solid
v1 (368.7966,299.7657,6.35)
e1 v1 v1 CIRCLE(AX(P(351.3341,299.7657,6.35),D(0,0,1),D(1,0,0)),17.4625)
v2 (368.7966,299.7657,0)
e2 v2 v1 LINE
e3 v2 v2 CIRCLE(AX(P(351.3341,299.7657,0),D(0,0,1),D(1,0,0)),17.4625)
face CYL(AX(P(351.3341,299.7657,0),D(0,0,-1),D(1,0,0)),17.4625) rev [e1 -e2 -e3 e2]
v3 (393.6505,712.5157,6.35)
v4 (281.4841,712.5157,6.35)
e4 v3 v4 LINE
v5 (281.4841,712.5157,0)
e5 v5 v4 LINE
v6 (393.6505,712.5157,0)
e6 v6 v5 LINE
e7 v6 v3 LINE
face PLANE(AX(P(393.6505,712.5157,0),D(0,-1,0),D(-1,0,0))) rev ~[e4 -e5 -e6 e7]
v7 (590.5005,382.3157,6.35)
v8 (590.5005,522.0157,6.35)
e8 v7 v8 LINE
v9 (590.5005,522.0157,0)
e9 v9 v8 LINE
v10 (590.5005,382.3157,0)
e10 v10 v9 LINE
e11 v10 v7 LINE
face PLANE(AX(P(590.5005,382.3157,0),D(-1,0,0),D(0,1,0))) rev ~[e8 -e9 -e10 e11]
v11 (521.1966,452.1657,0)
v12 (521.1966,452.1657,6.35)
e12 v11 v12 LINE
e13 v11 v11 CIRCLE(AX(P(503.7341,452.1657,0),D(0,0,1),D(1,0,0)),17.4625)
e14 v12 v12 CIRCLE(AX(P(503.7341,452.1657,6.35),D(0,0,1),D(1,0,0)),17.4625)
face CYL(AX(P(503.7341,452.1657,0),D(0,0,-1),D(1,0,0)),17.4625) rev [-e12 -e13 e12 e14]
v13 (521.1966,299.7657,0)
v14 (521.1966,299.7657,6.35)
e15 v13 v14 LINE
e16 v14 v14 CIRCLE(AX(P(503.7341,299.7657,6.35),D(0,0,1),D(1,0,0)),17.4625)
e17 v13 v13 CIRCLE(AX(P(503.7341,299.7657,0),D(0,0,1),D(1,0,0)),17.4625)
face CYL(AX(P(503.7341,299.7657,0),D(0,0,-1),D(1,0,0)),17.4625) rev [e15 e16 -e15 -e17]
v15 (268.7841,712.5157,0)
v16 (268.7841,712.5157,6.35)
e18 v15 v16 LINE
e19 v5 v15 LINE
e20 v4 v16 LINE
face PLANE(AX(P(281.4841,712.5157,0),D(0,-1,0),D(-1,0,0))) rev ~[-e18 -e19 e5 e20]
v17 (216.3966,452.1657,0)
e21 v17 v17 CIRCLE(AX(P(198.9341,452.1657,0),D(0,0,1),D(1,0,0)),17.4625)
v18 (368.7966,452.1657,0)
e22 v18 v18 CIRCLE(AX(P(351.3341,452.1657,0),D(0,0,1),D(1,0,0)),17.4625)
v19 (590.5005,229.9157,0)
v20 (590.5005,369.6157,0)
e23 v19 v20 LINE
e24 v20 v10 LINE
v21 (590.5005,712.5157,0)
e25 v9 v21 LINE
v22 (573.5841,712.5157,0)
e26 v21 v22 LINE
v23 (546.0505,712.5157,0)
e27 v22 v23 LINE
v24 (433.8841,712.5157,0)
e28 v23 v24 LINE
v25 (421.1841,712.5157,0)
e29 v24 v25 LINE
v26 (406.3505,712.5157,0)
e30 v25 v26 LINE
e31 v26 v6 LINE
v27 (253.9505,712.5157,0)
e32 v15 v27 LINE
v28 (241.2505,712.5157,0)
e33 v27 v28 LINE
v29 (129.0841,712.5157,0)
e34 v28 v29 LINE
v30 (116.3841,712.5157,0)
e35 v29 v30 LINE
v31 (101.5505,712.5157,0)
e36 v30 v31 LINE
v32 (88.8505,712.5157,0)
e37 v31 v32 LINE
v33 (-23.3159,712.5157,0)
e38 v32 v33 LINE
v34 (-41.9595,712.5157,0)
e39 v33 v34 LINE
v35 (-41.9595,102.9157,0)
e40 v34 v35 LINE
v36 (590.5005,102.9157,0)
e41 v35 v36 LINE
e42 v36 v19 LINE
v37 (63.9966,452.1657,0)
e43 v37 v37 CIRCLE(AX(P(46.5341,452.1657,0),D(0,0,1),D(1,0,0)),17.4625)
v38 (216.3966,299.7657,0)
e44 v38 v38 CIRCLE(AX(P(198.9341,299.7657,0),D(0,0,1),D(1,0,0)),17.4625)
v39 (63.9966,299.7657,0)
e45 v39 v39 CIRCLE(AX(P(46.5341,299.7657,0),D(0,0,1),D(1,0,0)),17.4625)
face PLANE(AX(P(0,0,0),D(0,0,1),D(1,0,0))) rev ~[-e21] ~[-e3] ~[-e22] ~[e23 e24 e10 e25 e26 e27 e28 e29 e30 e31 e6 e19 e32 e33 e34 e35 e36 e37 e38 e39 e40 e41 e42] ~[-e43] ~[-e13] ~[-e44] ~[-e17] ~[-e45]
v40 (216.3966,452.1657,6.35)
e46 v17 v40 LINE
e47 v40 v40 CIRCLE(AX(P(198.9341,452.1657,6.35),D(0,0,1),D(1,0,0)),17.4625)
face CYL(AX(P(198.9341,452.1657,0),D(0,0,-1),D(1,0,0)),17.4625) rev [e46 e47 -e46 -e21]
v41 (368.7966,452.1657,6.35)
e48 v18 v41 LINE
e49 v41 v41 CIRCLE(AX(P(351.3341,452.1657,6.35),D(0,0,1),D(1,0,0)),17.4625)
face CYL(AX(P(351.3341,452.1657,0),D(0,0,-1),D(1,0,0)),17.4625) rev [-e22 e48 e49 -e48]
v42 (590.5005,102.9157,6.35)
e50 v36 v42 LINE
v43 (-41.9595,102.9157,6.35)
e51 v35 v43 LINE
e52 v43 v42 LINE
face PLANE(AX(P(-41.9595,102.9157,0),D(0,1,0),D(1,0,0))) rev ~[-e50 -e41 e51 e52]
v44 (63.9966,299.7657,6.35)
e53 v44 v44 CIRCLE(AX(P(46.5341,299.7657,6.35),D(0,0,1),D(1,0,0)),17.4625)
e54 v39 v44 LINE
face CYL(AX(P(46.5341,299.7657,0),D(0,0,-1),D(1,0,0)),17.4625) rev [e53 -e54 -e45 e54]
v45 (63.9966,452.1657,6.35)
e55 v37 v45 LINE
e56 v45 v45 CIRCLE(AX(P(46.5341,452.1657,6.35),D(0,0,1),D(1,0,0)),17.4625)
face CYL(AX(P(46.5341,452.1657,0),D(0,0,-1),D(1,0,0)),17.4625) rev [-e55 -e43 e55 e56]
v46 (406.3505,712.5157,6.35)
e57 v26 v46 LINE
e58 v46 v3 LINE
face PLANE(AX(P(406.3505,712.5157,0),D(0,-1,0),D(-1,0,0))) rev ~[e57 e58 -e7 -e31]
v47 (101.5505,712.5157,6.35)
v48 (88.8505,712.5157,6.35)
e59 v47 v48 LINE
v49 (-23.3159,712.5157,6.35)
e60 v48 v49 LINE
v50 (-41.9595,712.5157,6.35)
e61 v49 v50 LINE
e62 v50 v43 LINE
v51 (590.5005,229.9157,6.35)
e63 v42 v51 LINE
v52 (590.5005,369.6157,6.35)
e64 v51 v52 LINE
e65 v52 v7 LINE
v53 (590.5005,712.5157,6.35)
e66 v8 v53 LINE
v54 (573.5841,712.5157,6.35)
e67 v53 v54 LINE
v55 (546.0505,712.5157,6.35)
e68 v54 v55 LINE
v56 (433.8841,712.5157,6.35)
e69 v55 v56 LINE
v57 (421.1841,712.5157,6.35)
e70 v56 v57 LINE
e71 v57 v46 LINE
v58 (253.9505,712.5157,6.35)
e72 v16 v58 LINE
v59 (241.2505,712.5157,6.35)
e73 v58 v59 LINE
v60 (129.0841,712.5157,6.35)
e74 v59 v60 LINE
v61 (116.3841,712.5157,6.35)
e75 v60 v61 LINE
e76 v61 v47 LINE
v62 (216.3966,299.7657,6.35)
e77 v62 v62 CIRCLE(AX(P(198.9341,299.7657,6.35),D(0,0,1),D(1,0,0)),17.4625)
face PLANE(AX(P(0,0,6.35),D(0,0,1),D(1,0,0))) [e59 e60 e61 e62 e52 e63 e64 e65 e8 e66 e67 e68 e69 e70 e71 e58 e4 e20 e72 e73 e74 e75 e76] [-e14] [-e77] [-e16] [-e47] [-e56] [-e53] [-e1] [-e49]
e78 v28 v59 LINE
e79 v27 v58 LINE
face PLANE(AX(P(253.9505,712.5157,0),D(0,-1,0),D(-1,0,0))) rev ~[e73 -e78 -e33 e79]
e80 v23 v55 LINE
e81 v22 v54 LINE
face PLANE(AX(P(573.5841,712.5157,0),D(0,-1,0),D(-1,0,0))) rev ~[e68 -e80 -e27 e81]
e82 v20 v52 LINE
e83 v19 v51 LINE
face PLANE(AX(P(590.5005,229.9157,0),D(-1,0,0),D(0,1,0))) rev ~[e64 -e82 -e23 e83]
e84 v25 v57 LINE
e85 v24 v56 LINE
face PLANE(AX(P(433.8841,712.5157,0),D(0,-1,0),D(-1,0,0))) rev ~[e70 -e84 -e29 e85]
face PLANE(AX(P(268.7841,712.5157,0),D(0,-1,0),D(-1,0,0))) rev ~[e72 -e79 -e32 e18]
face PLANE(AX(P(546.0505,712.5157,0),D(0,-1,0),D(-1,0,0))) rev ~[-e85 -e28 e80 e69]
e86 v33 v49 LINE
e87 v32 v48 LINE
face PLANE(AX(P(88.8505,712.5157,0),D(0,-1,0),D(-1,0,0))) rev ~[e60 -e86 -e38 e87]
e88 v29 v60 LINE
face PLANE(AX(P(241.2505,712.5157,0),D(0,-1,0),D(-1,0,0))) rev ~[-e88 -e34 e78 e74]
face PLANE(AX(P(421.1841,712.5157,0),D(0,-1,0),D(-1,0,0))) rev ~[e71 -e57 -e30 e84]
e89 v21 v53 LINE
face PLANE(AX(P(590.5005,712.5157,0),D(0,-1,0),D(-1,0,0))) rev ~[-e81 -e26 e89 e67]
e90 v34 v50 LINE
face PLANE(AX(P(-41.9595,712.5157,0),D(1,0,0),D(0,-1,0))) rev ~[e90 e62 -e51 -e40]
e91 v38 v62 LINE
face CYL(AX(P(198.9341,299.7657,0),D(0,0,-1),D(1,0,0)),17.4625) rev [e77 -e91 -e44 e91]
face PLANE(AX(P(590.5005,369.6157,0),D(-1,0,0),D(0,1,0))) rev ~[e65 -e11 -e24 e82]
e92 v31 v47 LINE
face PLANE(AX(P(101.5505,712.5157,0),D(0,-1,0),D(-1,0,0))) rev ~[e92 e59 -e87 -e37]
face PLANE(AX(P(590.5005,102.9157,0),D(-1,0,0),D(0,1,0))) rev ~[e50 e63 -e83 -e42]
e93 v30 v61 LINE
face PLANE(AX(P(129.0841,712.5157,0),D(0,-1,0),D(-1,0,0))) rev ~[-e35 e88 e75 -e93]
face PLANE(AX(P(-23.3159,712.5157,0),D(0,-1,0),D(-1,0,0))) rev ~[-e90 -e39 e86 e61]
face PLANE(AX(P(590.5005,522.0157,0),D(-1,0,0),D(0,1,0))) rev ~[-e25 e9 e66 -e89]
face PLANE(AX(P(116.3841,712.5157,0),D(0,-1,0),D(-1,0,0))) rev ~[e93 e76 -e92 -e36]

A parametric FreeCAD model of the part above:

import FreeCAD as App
import Part
import Sketcher
Q = App.Units.Quantity


def add_polygon(sketch, points):
    """Adds a closed chain of lines whose ends are joined by coincident constraints."""
    first, n = sketch.GeometryCount, len(points)
    for a, b in zip(points, points[1:] + points[:1]):
        sketch.addGeometry(Part.LineSegment(App.Vector(*a, 0), App.Vector(*b, 0)), False)
    for i in range(n):
        sketch.addConstraint(Sketcher.Constraint("Coincident", first + i, 2, first + (i + 1) % n, 1))

doc = App.newDocument("Part")
params = doc.addObject("Spreadsheet::Sheet", "Params")
for row, (alias, value) in enumerate([
    ("sketch1_height", "24 in"),
    ("sketch1_diameter", "1.375 in"),
    ("sketch1_width", "24.9 in"),
    ("pad1_length", "0.25 in"),
], start=1):
    params.set(f"A{row}", alias)
    params.set(f"B{row}", "=" + value)
    params.setAlias(f"B{row}", alias)

body = doc.addObject("PartDesign::Body", "Body")

# Sketch on XY plane
sketch1 = doc.addObject("Sketcher::SketchObject", "Sketch")
body.addObject(sketch1)
sketch1.AttachmentSupport = (doc.XY_Plane, [""])
sketch1.MapMode = "FlatFace"
add_polygon(sketch1, [(-41.9595, 712.5157), (-41.9595, 102.9157), (590.5005, 102.9157), (590.5005, 712.5157)])  # lines 0-3
sketch1.addGeometry(Part.Circle(App.Vector(46.5341, 299.7657, 0), App.Vector(0, 0, 1), 17.4625), False)  # 4
sketch1.addGeometry(Part.Circle(App.Vector(198.9341, 299.7657, 0), App.Vector(0, 0, 1), 17.4625), False)  # 5
sketch1.addGeometry(Part.Circle(App.Vector(351.3341, 299.7657, 0), App.Vector(0, 0, 1), 17.4625), False)  # 6
sketch1.addGeometry(Part.Circle(App.Vector(503.7341, 299.7657, 0), App.Vector(0, 0, 1), 17.4625), False)  # 7
sketch1.addGeometry(Part.Circle(App.Vector(46.5341, 452.1657, 0), App.Vector(0, 0, 1), 17.4625), False)  # 8
sketch1.addGeometry(Part.Circle(App.Vector(198.9341, 452.1657, 0), App.Vector(0, 0, 1), 17.4625), False)  # 9
sketch1.addGeometry(Part.Circle(App.Vector(351.3341, 452.1657, 0), App.Vector(0, 0, 1), 17.4625), False)  # 10
sketch1.addGeometry(Part.Circle(App.Vector(503.7341, 452.1657, 0), App.Vector(0, 0, 1), 17.4625), False)  # 11
sketch1.addConstraint([
    Sketcher.Constraint("Vertical", 0),
    Sketcher.Constraint("Horizontal", 1),
    Sketcher.Constraint("Vertical", 2),
    Sketcher.Constraint("Horizontal", 3),
    Sketcher.Constraint("Equal", 4, 5),
    Sketcher.Constraint("Equal", 5, 6),
    Sketcher.Constraint("Equal", 6, 7),
    Sketcher.Constraint("Equal", 7, 8),
    Sketcher.Constraint("Equal", 8, 9),
    Sketcher.Constraint("Equal", 9, 10),
    Sketcher.Constraint("Equal", 10, 11),
    Sketcher.Constraint("Horizontal", 4, 3, 5, 3),
    Sketcher.Constraint("Horizontal", 5, 3, 6, 3),
    Sketcher.Constraint("Horizontal", 6, 3, 7, 3),
    Sketcher.Constraint("Horizontal", 8, 3, 9, 3),
    Sketcher.Constraint("Horizontal", 9, 3, 10, 3),
    Sketcher.Constraint("Horizontal", 10, 3, 11, 3),
    Sketcher.Constraint("Vertical", 4, 3, 8, 3),
    Sketcher.Constraint("Vertical", 5, 3, 9, 3),
    Sketcher.Constraint("Vertical", 6, 3, 10, 3),
    Sketcher.Constraint("Vertical", 7, 3, 11, 3),
    Sketcher.Constraint("DistanceY", 0, 2, 0, 1, Q("24 in")),
    Sketcher.Constraint("Diameter", 4, Q("1.375 in")),
    Sketcher.Constraint("DistanceX", 1, 1, 1, 2, Q("24.9 in")),
    Sketcher.Constraint("DistanceX", 4, 3, 5, 3, Q("6 in")),
    Sketcher.Constraint("DistanceX", 5, 3, 6, 3, Q("6 in")),
    Sketcher.Constraint("DistanceX", 6, 3, 7, 3, Q("6 in")),
    Sketcher.Constraint("DistanceY", 4, 3, 8, 3, Q("6 in")),
    Sketcher.Constraint("DistanceY", 0, 2, 4, 3, Q("7.75 in")),
    Sketcher.Constraint("DistanceX", 0, 2, 4, 3, Q("3.484 in")),
    Sketcher.Constraint("DistanceY", -1, 1, 4, 3, Q("11.8018 in")),
    Sketcher.Constraint("DistanceX", -1, 1, 4, 3, Q("46.534 mm")),
])
sketch1.setExpression("Constraints[25]", "Params.sketch1_height")
sketch1.setExpression("Constraints[26]", "Params.sketch1_diameter")
sketch1.setExpression("Constraints[27]", "Params.sketch1_width")
pad1 = doc.addObject("PartDesign::Pad", "Pad")
body.addObject(pad1)
pad1.Profile = sketch1
pad1.setExpression("Length", "Params.pad1_length")

doc.recompute()
